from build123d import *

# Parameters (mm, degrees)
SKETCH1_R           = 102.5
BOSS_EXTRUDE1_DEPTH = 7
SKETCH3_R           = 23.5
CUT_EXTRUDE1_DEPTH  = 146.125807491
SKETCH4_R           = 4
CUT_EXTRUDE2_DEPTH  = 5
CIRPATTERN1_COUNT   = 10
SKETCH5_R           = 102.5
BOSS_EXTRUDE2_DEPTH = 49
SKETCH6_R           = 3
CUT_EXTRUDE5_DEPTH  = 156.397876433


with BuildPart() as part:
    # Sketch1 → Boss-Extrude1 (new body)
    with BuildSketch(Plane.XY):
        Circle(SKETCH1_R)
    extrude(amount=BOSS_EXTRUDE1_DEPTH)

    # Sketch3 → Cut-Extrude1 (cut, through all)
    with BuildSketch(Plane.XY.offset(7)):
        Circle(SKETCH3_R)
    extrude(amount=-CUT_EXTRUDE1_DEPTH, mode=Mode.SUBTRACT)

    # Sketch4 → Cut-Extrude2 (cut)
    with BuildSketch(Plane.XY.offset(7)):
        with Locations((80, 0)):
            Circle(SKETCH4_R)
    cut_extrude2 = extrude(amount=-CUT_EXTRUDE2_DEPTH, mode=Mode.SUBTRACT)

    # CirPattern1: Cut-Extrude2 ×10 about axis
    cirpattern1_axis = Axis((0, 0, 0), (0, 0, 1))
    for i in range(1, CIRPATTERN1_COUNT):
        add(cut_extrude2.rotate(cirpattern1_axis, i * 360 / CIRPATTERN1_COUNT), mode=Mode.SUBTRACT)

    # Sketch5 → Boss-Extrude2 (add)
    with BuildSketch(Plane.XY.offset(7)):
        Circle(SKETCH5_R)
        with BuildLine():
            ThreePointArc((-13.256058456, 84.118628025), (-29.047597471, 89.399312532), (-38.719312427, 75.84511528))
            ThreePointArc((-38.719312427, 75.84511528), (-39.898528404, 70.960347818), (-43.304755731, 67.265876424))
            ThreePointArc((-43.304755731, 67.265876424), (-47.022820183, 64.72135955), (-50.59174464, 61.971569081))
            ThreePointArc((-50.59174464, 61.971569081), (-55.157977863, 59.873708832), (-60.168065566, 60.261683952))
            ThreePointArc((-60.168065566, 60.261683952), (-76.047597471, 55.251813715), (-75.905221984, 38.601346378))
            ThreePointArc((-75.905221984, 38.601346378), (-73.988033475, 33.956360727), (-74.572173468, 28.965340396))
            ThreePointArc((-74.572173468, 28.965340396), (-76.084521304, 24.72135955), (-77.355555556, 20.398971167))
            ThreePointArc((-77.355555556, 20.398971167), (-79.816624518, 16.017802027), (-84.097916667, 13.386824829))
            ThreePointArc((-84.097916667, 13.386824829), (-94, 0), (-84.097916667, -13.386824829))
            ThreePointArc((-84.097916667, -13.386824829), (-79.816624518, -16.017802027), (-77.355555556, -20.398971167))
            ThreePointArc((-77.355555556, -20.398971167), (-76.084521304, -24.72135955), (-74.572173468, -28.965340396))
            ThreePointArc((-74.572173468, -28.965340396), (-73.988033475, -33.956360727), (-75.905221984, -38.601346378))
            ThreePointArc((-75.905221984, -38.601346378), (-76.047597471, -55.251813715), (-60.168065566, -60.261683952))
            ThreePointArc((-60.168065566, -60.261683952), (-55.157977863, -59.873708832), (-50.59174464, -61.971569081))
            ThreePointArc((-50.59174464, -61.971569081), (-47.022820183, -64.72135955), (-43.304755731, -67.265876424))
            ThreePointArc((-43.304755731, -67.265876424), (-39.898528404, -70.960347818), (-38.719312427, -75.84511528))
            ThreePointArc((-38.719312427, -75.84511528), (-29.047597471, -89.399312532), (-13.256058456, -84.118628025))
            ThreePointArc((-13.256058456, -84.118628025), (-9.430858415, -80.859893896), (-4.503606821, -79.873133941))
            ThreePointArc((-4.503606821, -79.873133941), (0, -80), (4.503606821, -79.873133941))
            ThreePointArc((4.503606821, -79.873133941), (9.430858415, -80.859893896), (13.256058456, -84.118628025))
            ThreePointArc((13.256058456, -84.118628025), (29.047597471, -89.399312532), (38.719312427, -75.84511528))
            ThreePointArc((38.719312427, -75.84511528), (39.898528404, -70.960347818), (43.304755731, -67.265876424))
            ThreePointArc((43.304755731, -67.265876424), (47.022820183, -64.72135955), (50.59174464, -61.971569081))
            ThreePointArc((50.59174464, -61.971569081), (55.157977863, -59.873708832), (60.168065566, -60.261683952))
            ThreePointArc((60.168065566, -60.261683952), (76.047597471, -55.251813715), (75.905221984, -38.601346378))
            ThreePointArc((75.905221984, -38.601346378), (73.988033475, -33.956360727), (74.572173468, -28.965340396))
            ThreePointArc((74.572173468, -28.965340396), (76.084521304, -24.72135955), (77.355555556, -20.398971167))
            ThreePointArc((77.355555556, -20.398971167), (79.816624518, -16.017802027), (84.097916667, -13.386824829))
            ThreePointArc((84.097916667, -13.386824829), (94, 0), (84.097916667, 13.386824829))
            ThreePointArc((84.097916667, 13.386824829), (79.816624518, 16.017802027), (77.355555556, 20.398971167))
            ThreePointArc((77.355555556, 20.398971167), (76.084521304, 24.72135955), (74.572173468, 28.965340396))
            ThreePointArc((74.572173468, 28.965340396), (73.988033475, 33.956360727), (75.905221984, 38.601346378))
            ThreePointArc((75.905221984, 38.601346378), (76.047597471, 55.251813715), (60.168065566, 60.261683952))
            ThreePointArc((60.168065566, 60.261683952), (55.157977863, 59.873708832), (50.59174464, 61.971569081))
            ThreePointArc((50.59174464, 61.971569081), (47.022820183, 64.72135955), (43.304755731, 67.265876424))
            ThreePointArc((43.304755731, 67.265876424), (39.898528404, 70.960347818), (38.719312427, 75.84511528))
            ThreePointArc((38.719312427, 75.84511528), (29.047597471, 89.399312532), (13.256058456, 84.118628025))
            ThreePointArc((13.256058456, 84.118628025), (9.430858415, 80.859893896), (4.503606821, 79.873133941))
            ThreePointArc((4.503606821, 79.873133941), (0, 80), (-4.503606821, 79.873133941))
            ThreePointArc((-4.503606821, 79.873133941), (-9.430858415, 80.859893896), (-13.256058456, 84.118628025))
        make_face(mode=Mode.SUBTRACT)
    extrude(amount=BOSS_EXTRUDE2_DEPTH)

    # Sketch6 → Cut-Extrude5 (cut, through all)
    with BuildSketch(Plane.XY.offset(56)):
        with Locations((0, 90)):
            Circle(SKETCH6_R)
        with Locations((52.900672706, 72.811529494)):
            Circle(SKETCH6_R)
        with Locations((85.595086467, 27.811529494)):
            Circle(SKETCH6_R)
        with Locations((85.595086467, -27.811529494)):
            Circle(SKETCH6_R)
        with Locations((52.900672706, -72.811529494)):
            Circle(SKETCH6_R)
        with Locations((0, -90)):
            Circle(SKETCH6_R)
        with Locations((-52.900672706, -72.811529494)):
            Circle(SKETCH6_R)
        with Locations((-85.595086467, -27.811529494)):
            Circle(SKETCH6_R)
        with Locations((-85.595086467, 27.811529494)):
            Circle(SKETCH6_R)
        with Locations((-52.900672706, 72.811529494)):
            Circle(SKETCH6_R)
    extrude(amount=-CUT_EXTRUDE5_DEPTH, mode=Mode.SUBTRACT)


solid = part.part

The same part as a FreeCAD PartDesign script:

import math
import FreeCAD as App
import Part
import Sketcher

V = App.Vector

doc = App.newDocument("Part")
body = doc.addObject("PartDesign::Body", "Body")

sketch1 = doc.addObject("Sketcher::SketchObject", "Sketch")
body.addObject(sketch1)
sketch1.AttachmentSupport = (doc.XY_Plane, [""])
sketch1.MapMode = "FlatFace"
sketch1.addGeometry(Part.Circle(V(0, 0, 0), V(0, 0, 1), 102), False)
sketch1.addConstraint([
    Sketcher.Constraint("Coincident", 0, 3, -1, 1),
    Sketcher.Constraint("Diameter", 0, 205.0),
])
pad1 = doc.addObject("PartDesign::Pad", "Pad")
body.addObject(pad1)
pad1.Profile = sketch1
pad1.Length = 7

sketch2 = doc.addObject("Sketcher::SketchObject", "Sketch001")
body.addObject(sketch2)
sketch2.AttachmentSupport = (doc.XY_Plane, [""])
sketch2.MapMode = "FlatFace"
sketch2.AttachmentOffset = App.Placement(V(0, 0, 7), App.Rotation())
sketch2.addGeometry(Part.Circle(V(0, 0, 0), V(0, 0, 1), 24), False)
sketch2.addConstraint([
    Sketcher.Constraint("Coincident", 0, 3, -1, 1),
    Sketcher.Constraint("Diameter", 0, 47.0),
])
pocket1 = doc.addObject("PartDesign::Pocket", "Pocket")
body.addObject(pocket1)
pocket1.Profile = sketch2
pocket1.Type = "ThroughAll"

sketch3 = doc.addObject("Sketcher::SketchObject", "Sketch002")
body.addObject(sketch3)
sketch3.AttachmentSupport = (doc.XY_Plane, [""])
sketch3.MapMode = "FlatFace"
sketch3.AttachmentOffset = App.Placement(V(0, 0, 7), App.Rotation())
sketch3.addGeometry(Part.Circle(V(80, 0, 0), V(0, 0, 1), 4), False)
sketch3.addConstraint([
    Sketcher.Constraint("PointOnObject", 0, 3, -1),
    Sketcher.Constraint("Diameter", 0, 8.0),
    Sketcher.Constraint("DistanceX", -1, 1, 0, 3, 80.0),
])
pocket2 = doc.addObject("PartDesign::Pocket", "Pocket001")
body.addObject(pocket2)
pocket2.Profile = sketch3
pocket2.Length = 5
doc.recompute()

polarpattern = doc.addObject("PartDesign::PolarPattern", "PolarPattern")
body.addObject(polarpattern)
polarpattern.Originals = [pocket2]
polarpattern.Axis = (doc.Z_Axis, [""])
polarpattern.Angle = 360
polarpattern.Occurrences = 10
body.Tip = polarpattern

sketch4 = doc.addObject("Sketcher::SketchObject", "Sketch003")
body.addObject(sketch4)
sketch4.AttachmentSupport = (doc.XY_Plane, [""])
sketch4.MapMode = "FlatFace"
sketch4.AttachmentOffset = App.Placement(V(0, 0, 7), App.Rotation())
sketch4.addGeometry([
    Part.Circle(V(0, 0, 0), V(0, 0, 1), 102),
    Part.ArcOfCircle(Part.Circle(V(-25, 76, 0), V(0, 0, 1), 14), math.radians(35), math.radians(181)),
    Part.ArcOfCircle(Part.Circle(V(-5, 90, 0), V(0, 0, 1), 10), math.radians(-145), math.radians(-87)),
    Part.ArcOfCircle(Part.Circle(V(0, 0, 0), V(0, 0, 1), 80), math.radians(86.77), math.radians(93.23)),
    Part.ArcOfCircle(Part.Circle(V(5, 90, 0), V(0, 0, 1), 10), math.radians(-93), math.radians(-35)),
    Part.ArcOfCircle(Part.Circle(V(25, 76, 0), V(0, 0, 1), 14), math.radians(-1), math.radians(145)),
    Part.ArcOfCircle(Part.Circle(V(49, 76, 0), V(0, 0, 1), 10), math.radians(179), math.radians(237)),
    Part.ArcOfCircle(Part.Circle(V(0, 0, 0), V(0, 0, 1), 80), math.radians(50.77), math.radians(57.23)),
    Part.ArcOfCircle(Part.Circle(V(57, 70, 0), V(0, 0, 1), 10), math.radians(-129), math.radians(-71)),
    Part.ArcOfCircle(Part.Circle(V(65, 47, 0), V(0, 0, 1), 14), math.radians(-37), math.radians(109)),
    Part.ArcOfCircle(Part.Circle(V(84, 33, 0), V(0, 0, 1), 10), math.radians(143), math.radians(201)),
    Part.ArcOfCircle(Part.Circle(V(0, 0, 0), V(0, 0, 1), 80), math.radians(14.77), math.radians(21.23)),
    Part.ArcOfCircle(Part.Circle(V(87, 23, 0), V(0, 0, 1), 10), math.radians(-165), math.radians(-107)),
    Part.ArcOfCircle(Part.Circle(V(80, 0, 0), V(0, 0, 1), 14), math.radians(-73), math.radians(73)),
    Part.ArcOfCircle(Part.Circle(V(87, -23, 0), V(0, 0, 1), 10), math.radians(107), math.radians(165)),
    Part.ArcOfCircle(Part.Circle(V(0, 0, 0), V(0, 0, 1), 80), math.radians(-21.23), math.radians(-14.77)),
    Part.ArcOfCircle(Part.Circle(V(84, -33, 0), V(0, 0, 1), 10), math.radians(159), math.radians(217)),
    Part.ArcOfCircle(Part.Circle(V(65, -47, 0), V(0, 0, 1), 14), math.radians(-109), math.radians(37)),
    Part.ArcOfCircle(Part.Circle(V(57, -70, 0), V(0, 0, 1), 10), math.radians(71), math.radians(129)),
    Part.ArcOfCircle(Part.Circle(V(0, 0, 0), V(0, 0, 1), 80), math.radians(-57.23), math.radians(-50.77)),
    Part.ArcOfCircle(Part.Circle(V(49, -76, 0), V(0, 0, 1), 10), math.radians(123), math.radians(181)),
    Part.ArcOfCircle(Part.Circle(V(25, -76, 0), V(0, 0, 1), 14), math.radians(-145), math.radians(1)),
    Part.ArcOfCircle(Part.Circle(V(5, -90, 0), V(0, 0, 1), 10), math.radians(35), math.radians(93)),
    Part.ArcOfCircle(Part.Circle(V(0, 0, 0), V(0, 0, 1), 80), math.radians(-93.23), math.radians(-86.77)),
    Part.ArcOfCircle(Part.Circle(V(-5, -90, 0), V(0, 0, 1), 10), math.radians(87), math.radians(145)),
    Part.ArcOfCircle(Part.Circle(V(-25, -76, 0), V(0, 0, 1), 14), math.radians(179), math.radians(325)),
    Part.ArcOfCircle(Part.Circle(V(-49, -76, 0), V(0, 0, 1), 10), math.radians(-1), math.radians(57)),
    Part.ArcOfCircle(Part.Circle(V(0, 0, 0), V(0, 0, 1), 80), math.radians(-129.23), math.radians(-122.77)),
    Part.ArcOfCircle(Part.Circle(V(-57, -70, 0), V(0, 0, 1), 10), math.radians(51), math.radians(109)),
    Part.ArcOfCircle(Part.Circle(V(-65, -47, 0), V(0, 0, 1), 14), math.radians(143), math.radians(289)),
    Part.ArcOfCircle(Part.Circle(V(-84, -33, 0), V(0, 0, 1), 10), math.radians(-37), math.radians(21)),
    Part.ArcOfCircle(Part.Circle(V(0, 0, 0), V(0, 0, 1), 80), math.radians(-165.23), math.radians(-158.77)),
    Part.ArcOfCircle(Part.Circle(V(-87, -23, 0), V(0, 0, 1), 10), math.radians(15), math.radians(73)),
    Part.ArcOfCircle(Part.Circle(V(-80, 0, 0), V(0, 0, 1), 14), math.radians(107), math.radians(253)),
    Part.ArcOfCircle(Part.Circle(V(-87, 23, 0), V(0, 0, 1), 10), math.radians(-73), math.radians(-15)),
    Part.ArcOfCircle(Part.Circle(V(0, 0, 0), V(0, 0, 1), 80), math.radians(158.77), math.radians(165.23)),
    Part.ArcOfCircle(Part.Circle(V(-84, 33, 0), V(0, 0, 1), 10), math.radians(-21), math.radians(37)),
    Part.ArcOfCircle(Part.Circle(V(-65, 47, 0), V(0, 0, 1), 14), math.radians(71), math.radians(217)),
    Part.ArcOfCircle(Part.Circle(V(-57, 70, 0), V(0, 0, 1), 10), math.radians(-109), math.radians(-51)),
    Part.ArcOfCircle(Part.Circle(V(0, 0, 0), V(0, 0, 1), 80), math.radians(122.77), math.radians(129.23)),
    Part.ArcOfCircle(Part.Circle(V(-49, 76, 0), V(0, 0, 1), 10), math.radians(-57), math.radians(1)),
], False)
sketch4.addConstraint([
    Sketcher.Constraint("Tangent", 1, 1, 2, 1),
    Sketcher.Constraint("Tangent", 2, 2, 3, 2),
    Sketcher.Constraint("Tangent", 3, 1, 4, 1),
    Sketcher.Constraint("Tangent", 4, 2, 5, 2),
    Sketcher.Constraint("Tangent", 5, 1, 6, 1),
    Sketcher.Constraint("Tangent", 6, 2, 7, 2),
    Sketcher.Constraint("Tangent", 7, 1, 8, 1),
    Sketcher.Constraint("Tangent", 8, 2, 9, 2),
    Sketcher.Constraint("Tangent", 9, 1, 10, 1),
    Sketcher.Constraint("Tangent", 10, 2, 11, 2),
    Sketcher.Constraint("Tangent", 11, 1, 12, 1),
    Sketcher.Constraint("Tangent", 12, 2, 13, 2),
    Sketcher.Constraint("Tangent", 13, 1, 14, 1),
    Sketcher.Constraint("Tangent", 14, 2, 15, 2),
    Sketcher.Constraint("Tangent", 15, 1, 16, 1),
    Sketcher.Constraint("Tangent", 16, 2, 17, 2),
    Sketcher.Constraint("Tangent", 17, 1, 18, 1),
    Sketcher.Constraint("Tangent", 18, 2, 19, 2),
    Sketcher.Constraint("Tangent", 19, 1, 20, 1),
    Sketcher.Constraint("Tangent", 20, 2, 21, 2),
    Sketcher.Constraint("Tangent", 21, 1, 22, 1),
    Sketcher.Constraint("Tangent", 22, 2, 23, 2),
    Sketcher.Constraint("Tangent", 23, 1, 24, 1),
    Sketcher.Constraint("Tangent", 24, 2, 25, 2),
    Sketcher.Constraint("Tangent", 25, 1, 26, 1),
    Sketcher.Constraint("Tangent", 26, 2, 27, 2),
    Sketcher.Constraint("Tangent", 27, 1, 28, 1),
    Sketcher.Constraint("Tangent", 28, 2, 29, 2),
    Sketcher.Constraint("Tangent", 29, 1, 30, 1),
    Sketcher.Constraint("Tangent", 30, 2, 31, 2),
    Sketcher.Constraint("Tangent", 31, 1, 32, 1),
    Sketcher.Constraint("Tangent", 32, 2, 33, 2),
    Sketcher.Constraint("Tangent", 33, 1, 34, 1),
    Sketcher.Constraint("Tangent", 34, 2, 35, 2),
    Sketcher.Constraint("Tangent", 35, 1, 36, 1),
    Sketcher.Constraint("Tangent", 36, 2, 37, 2),
    Sketcher.Constraint("Tangent", 37, 1, 38, 1),
    Sketcher.Constraint("Tangent", 38, 2, 39, 2),
    Sketcher.Constraint("Tangent", 39, 1, 40, 1),
    Sketcher.Constraint("Tangent", 40, 2, 1, 2),
    Sketcher.Constraint("Coincident", 0, 3, -1, 1),
    Sketcher.Constraint("Coincident", 3, 3, -1, 1),
    Sketcher.Constraint("Coincident", 7, 3, -1, 1),
    Sketcher.Constraint("Coincident", 11, 3, -1, 1),
    Sketcher.Constraint("Coincident", 15, 3, -1, 1),
    Sketcher.Constraint("Coincident", 19, 3, -1, 1),
    Sketcher.Constraint("Coincident", 23, 3, -1, 1),
    Sketcher.Constraint("Coincident", 27, 3, -1, 1),
    Sketcher.Constraint("Coincident", 31, 3, -1, 1),
    Sketcher.Constraint("Coincident", 35, 3, -1, 1),
    Sketcher.Constraint("Coincident", 39, 3, -1, 1),
    Sketcher.Constraint("Equal", 2, 4),
    Sketcher.Constraint("Equal", 1, 5),
    Sketcher.Constraint("Equal", 4, 6),
    Sketcher.Constraint("Equal", 3, 7),
    Sketcher.Constraint("Equal", 6, 8),
    Sketcher.Constraint("Equal", 5, 9),
    Sketcher.Constraint("Equal", 8, 10),
    Sketcher.Constraint("Equal", 7, 11),
    Sketcher.Constraint("Equal", 10, 12),
    Sketcher.Constraint("Equal", 9, 13),
    Sketcher.Constraint("Equal", 12, 14),
    Sketcher.Constraint("Equal", 11, 15),
    Sketcher.Constraint("Equal", 14, 16),
    Sketcher.Constraint("Equal", 13, 17),
    Sketcher.Constraint("Equal", 16, 18),
    Sketcher.Constraint("Equal", 15, 19),
    Sketcher.Constraint("Equal", 18, 20),
    Sketcher.Constraint("Equal", 17, 21),
    Sketcher.Constraint("Equal", 20, 22),
    Sketcher.Constraint("Equal", 19, 23),
    Sketcher.Constraint("Equal", 22, 24),
    Sketcher.Constraint("Equal", 21, 25),
    Sketcher.Constraint("Equal", 24, 26),
    Sketcher.Constraint("Equal", 23, 27),
    Sketcher.Constraint("Equal", 26, 28),
    Sketcher.Constraint("Equal", 25, 29),
    Sketcher.Constraint("Equal", 28, 30),
    Sketcher.Constraint("Equal", 27, 31),
    Sketcher.Constraint("Equal", 30, 32),
    Sketcher.Constraint("Equal", 29, 33),
    Sketcher.Constraint("Equal", 32, 34),
    Sketcher.Constraint("Equal", 31, 35),
    Sketcher.Constraint("Equal", 34, 36),
    Sketcher.Constraint("Equal", 33, 37),
    Sketcher.Constraint("Equal", 36, 38),
    Sketcher.Constraint("Equal", 35, 39),
    Sketcher.Constraint("Equal", 38, 40),
    Sketcher.Constraint("Symmetric", 1, 3, 21, 3, -1, 1),
    Sketcher.Constraint("Symmetric", 5, 3, 25, 3, -1, 1),
    Sketcher.Constraint("Symmetric", 9, 3, 29, 3, -1, 1),
    Sketcher.Constraint("Symmetric", 13, 3, 33, 3, -1, 1),
    Sketcher.Constraint("Symmetric", 17, 3, 37, 3, -1, 1),
    Sketcher.Constraint("Symmetric", 1, 3, 5, 3, -2),
    Sketcher.Constraint("Symmetric", 17, 3, 29, 3, -2),
    Sketcher.Constraint("PointOnObject", 13, 3, -1),
    Sketcher.Constraint("Diameter", 0, 205.0),
    Sketcher.Constraint("Radius", 1, 14.0),
    Sketcher.Constraint("Radius", 2, 10.0),
    Sketcher.Constraint("Radius", 3, 80.0),
    Sketcher.Constraint("DistanceX", -1, 1, 13, 3, 80.0),
    Sketcher.Constraint("DistanceX", 1, 3, -1, 1, 24.72136),
    Sketcher.Constraint("DistanceY", -1, 1, 1, 3, 76.084521),
    Sketcher.Constraint("DistanceX", -1, 1, 9, 3, 64.72136),
    Sketcher.Constraint("DistanceY", -1, 1, 9, 3, 47.02282),
])
pad2 = doc.addObject("PartDesign::Pad", "Pad001")
body.addObject(pad2)
pad2.Profile = sketch4
pad2.Length = 49

sketch5 = doc.addObject("Sketcher::SketchObject", "Sketch004")
body.addObject(sketch5)
sketch5.AttachmentSupport = (doc.XY_Plane, [""])
sketch5.MapMode = "FlatFace"
sketch5.AttachmentOffset = App.Placement(V(0, 0, 56), App.Rotation())
sketch5.addGeometry([
    Part.Circle(V(0, 90, 0), V(0, 0, 1), 3),
    Part.Circle(V(52.9, 72.8, 0), V(0, 0, 1), 3),
    Part.Circle(V(85.6, 27.8, 0), V(0, 0, 1), 3),
    Part.Circle(V(85.6, -27.8, 0), V(0, 0, 1), 3),
    Part.Circle(V(52.9, -72.8, 0), V(0, 0, 1), 3),
    Part.Circle(V(0, -90, 0), V(0, 0, 1), 3),
    Part.Circle(V(-52.9, -72.8, 0), V(0, 0, 1), 3),
    Part.Circle(V(-85.6, -27.8, 0), V(0, 0, 1), 3),
    Part.Circle(V(-85.6, 27.8, 0), V(0, 0, 1), 3),
    Part.Circle(V(-52.9, 72.8, 0), V(0, 0, 1), 3),
], False)
sketch5.addConstraint([
    Sketcher.Constraint("Equal", 0, 1),
    Sketcher.Constraint("Equal", 1, 2),
    Sketcher.Constraint("Equal", 2, 3),
    Sketcher.Constraint("Equal", 3, 4),
    Sketcher.Constraint("Equal", 4, 5),
    Sketcher.Constraint("Equal", 5, 6),
    Sketcher.Constraint("Equal", 6, 7),
    Sketcher.Constraint("Equal", 7, 8),
    Sketcher.Constraint("Equal", 8, 9),
    Sketcher.Constraint("Symmetric", 0, 3, 5, 3, -1, 1),
    Sketcher.Constraint("Symmetric", 1, 3, 6, 3, -1, 1),
    Sketcher.Constraint("Symmetric", 2, 3, 7, 3, -1, 1),
    Sketcher.Constraint("Symmetric", 3, 3, 8, 3, -1, 1),
    Sketcher.Constraint("Symmetric", 4, 3, 9, 3, -1, 1),
    Sketcher.Constraint("Symmetric", 4, 3, 6, 3, -2),
    Sketcher.Constraint("Symmetric", 3, 3, 7, 3, -2),
    Sketcher.Constraint("PointOnObject", 0, 3, -2),
    Sketcher.Constraint("Diameter", 0, 6.0),
    Sketcher.Constraint("DistanceY", -1, 1, 0, 3, 90.0),
    Sketcher.Constraint("DistanceY", 2, 3, 1, 3, 45.0),
    Sketcher.Constraint("DistanceY", -1, 1, 1, 3, 72.811529),
    Sketcher.Constraint("DistanceX", 6, 3, 3, 3, 138.495759),
    Sketcher.Constraint("DistanceX", -1, 1, 1, 3, 52.900673),
])
pocket3 = doc.addObject("PartDesign::Pocket", "Pocket002")
body.addObject(pocket3)
pocket3.Profile = sketch5
pocket3.Type = "ThroughAll"

doc.recompute()
